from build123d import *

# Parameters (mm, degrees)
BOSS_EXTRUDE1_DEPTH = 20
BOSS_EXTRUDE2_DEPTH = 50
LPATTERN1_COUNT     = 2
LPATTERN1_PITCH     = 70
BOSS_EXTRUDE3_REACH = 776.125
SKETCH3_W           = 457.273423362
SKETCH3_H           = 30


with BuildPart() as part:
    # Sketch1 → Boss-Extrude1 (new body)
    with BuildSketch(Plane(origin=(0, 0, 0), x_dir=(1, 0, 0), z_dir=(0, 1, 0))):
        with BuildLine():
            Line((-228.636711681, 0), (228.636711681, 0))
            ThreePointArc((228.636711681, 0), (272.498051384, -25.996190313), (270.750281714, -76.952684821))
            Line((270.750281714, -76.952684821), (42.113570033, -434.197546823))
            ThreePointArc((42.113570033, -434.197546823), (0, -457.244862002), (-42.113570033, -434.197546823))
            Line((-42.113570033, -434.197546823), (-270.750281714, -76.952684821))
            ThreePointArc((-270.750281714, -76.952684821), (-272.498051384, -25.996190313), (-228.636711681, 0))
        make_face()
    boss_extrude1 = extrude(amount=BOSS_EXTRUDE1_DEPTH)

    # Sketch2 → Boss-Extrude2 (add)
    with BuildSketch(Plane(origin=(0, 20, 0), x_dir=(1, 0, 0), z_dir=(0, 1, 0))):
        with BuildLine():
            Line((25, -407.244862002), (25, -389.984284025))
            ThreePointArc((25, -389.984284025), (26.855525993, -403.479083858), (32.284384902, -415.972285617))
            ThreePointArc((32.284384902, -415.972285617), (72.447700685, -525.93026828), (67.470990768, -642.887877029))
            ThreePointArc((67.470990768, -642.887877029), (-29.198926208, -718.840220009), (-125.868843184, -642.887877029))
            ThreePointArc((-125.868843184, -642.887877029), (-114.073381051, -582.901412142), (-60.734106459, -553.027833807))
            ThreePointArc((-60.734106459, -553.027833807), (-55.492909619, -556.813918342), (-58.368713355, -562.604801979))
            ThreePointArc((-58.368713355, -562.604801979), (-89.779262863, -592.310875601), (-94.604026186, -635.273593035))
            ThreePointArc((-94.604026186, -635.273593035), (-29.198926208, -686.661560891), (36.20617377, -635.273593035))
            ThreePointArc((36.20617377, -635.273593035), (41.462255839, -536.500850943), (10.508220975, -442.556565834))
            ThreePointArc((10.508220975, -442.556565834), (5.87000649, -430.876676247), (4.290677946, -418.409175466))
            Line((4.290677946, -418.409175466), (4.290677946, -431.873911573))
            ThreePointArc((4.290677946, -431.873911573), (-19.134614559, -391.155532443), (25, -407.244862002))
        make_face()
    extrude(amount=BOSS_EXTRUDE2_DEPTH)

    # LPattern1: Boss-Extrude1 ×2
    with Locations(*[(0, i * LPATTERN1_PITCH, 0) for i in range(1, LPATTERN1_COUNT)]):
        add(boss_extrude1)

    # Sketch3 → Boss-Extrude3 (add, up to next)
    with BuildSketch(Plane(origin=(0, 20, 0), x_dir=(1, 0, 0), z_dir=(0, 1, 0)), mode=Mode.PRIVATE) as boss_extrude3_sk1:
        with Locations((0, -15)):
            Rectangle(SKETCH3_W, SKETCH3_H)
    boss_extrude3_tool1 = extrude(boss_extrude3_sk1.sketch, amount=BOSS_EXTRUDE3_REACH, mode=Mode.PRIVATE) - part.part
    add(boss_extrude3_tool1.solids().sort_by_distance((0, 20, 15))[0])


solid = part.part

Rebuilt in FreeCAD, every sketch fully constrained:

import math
import FreeCAD as App
import Part
import Sketcher
from FreeCAD import Vector

doc = App.newDocument("Part")
body = doc.addObject("PartDesign::Body", "Body")

sketch1 = body.newObject("Sketcher::SketchObject", "Sketch")
sketch1.AttachmentSupport = (doc.getObject("XZ_Plane"), [""])
sketch1.MapMode = "FlatFace"
sketch1.addGeometry([
    Part.LineSegment(Vector(229, 0, 0), Vector(-229, 0, 0)),
    Part.ArcOfCircle(Part.Circle(Vector(-229, 50, 0), Vector(0, 0, 1), 50), math.radians(147), math.radians(270)),
    Part.LineSegment(Vector(-271, 77, 0), Vector(-42, 434, 0)),
    Part.ArcOfCircle(Part.Circle(Vector(0, 407, 0), Vector(0, 0, 1), 50), math.radians(33), math.radians(147)),
    Part.LineSegment(Vector(42, 434, 0), Vector(271, 77, 0)),
    Part.ArcOfCircle(Part.Circle(Vector(229, 50, 0), Vector(0, 0, 1), 50), math.radians(-90), math.radians(33)),
], False)
sketch1.addConstraint([
    Sketcher.Constraint("Tangent", 0, 2, 1, 2),
    Sketcher.Constraint("Tangent", 1, 1, 2, 1),
    Sketcher.Constraint("Tangent", 2, 2, 3, 2),
    Sketcher.Constraint("Tangent", 3, 1, 4, 1),
    Sketcher.Constraint("Tangent", 4, 2, 5, 2),
    Sketcher.Constraint("Tangent", 5, 1, 0, 1),
    Sketcher.Constraint("Horizontal", 0),
    Sketcher.Constraint("Equal", 1, 3),
    Sketcher.Constraint("Equal", 3, 5),
    Sketcher.Constraint("Symmetric", 0, 2, 5, 1, -1, 1),
    Sketcher.Constraint("PointOnObject", 3, 3, -2),
    Sketcher.Constraint("Radius", 1, 50.0),
    Sketcher.Constraint("DistanceX", 0, 2, 0, 1, 457.273423),
    Sketcher.Constraint("DistanceX", 2, 2, -1, 1, 42.11357),
])
pad1 = body.newObject("PartDesign::Pad", "Pad")
pad1.Profile = sketch1
pad1.Length = 20
pad1.Reversed = True

sketch2 = body.newObject("Sketcher::SketchObject", "Sketch001")
sketch2.AttachmentSupport = (doc.getObject("XZ_Plane"), [""])
sketch2.MapMode = "FlatFace"
sketch2.AttachmentOffset = App.Placement(Vector(0, 0, -20), App.Rotation())
sketch2.addGeometry([
    Part.LineSegment(Vector(25, 390, 0), Vector(25, 407.2, 0)),
    Part.ArcOfCircle(Part.Circle(Vector(0, 407.2, 0), Vector(0, 0, 1), 25), math.radians(80), math.radians(360)),
    Part.LineSegment(Vector(4.3, 431.9, 0), Vector(4.3, 418.4, 0)),
    Part.ArcOfCircle(Part.Circle(Vector(54.3, 418.4, 0), Vector(0, 0, 1), 50), math.radians(151), math.radians(180)),
    Part.ArcOfCircle(Part.Circle(Vector(-224, 571.9, 0), Vector(0, 0, 1), 267.8), math.radians(-29), math.radians(14)),
    Part.ArcOfCircle(Part.Circle(Vector(-29.2, 619.3, 0), Vector(0, 0, 1), 67.3), math.radians(14), math.radians(166)),
    Part.ArcOfCircle(Part.Circle(Vector(-33.5, 620.4, 0), Vector(0, 0, 1), 62.9), math.radians(166), math.radians(247)),
    Part.ArcOfCircle(Part.Circle(Vector(-60.3, 558, 0), Vector(0, 0, 1), 5), math.radians(-94), math.radians(67)),
    Part.ArcOfCircle(Part.Circle(Vector(-55.1, 625.7, 0), Vector(0, 0, 1), 72.8), math.radians(166), math.radians(266)),
    Part.ArcOfCircle(Part.Circle(Vector(-29.2, 619.3, 0), Vector(0, 0, 1), 99.5), math.radians(14), math.radians(166)),
    Part.ArcOfCircle(Part.Circle(Vector(-224, 571.9, 0), Vector(0, 0, 1), 300), math.radians(-31), math.radians(14)),
    Part.ArcOfCircle(Part.Circle(Vector(75, 390, 0), Vector(0, 0, 1), 50), math.radians(149), math.radians(180)),
], False)
sketch2.addConstraint([
    Sketcher.Constraint("Tangent", 0, 2, 1, 2),
    Sketcher.Constraint("Coincident", 1, 1, 2, 1),
    Sketcher.Constraint("Tangent", 2, 2, 3, 2),
    Sketcher.Constraint("Tangent", 3, 1, 4, 1),
    Sketcher.Constraint("Tangent", 4, 2, 5, 1),
    Sketcher.Constraint("Tangent", 5, 2, 6, 1),
    Sketcher.Constraint("Tangent", 6, 2, 7, 2),
    Sketcher.Constraint("Tangent", 7, 1, 8, 2),
    Sketcher.Constraint("Tangent", 8, 1, 9, 2),
    Sketcher.Constraint("Tangent", 9, 1, 10, 2),
    Sketcher.Constraint("Tangent", 10, 1, 11, 1),
    Sketcher.Constraint("Tangent", 11, 2, 0, 1),
    Sketcher.Constraint("Vertical", 0),
    Sketcher.Constraint("Vertical", 2),
    Sketcher.Constraint("Coincident", 9, 3, 5, 3),
    Sketcher.Constraint("Coincident", 10, 3, 4, 3),
    Sketcher.Constraint("Equal", 3, 11),
    Sketcher.Constraint("PointOnObject", 1, 3, -2),
    Sketcher.Constraint("Horizontal", 4, 2, 5, 2),
    Sketcher.Constraint("Horizontal", 8, 1, 9, 1),
    Sketcher.Constraint("Radius", 1, 25.0),
    Sketcher.Constraint("Radius", 3, 50.0),
    Sketcher.Constraint("Radius", 7, 5.0),
    Sketcher.Constraint("Radius", 10, 300.0),
    Sketcher.Constraint("Radius", 4, 267.821341),
    Sketcher.Constraint("Radius", 5, 67.316831),
    Sketcher.Constraint("Radius", 6, 62.915625),
    Sketcher.Constraint("Radius", 8, 72.842303),
    Sketcher.Constraint("DistanceY", -1, 1, 6, 2, 562.604802),
    Sketcher.Constraint("DistanceX", 7, 3, 6, 3, 26.871901),
    Sketcher.Constraint("DistanceY", 0, 1, 0, 2, 17.260578),
    Sketcher.Constraint("DistanceY", 2, 2, 2, 1, 13.464736),
    Sketcher.Constraint("DistanceX", 8, 3, -1, 1, 55.095189),
])
pad2 = body.newObject("PartDesign::Pad", "Pad001")
pad2.Profile = sketch2
pad2.Length = 50
pad2.Reversed = True
doc.recompute()

linearpattern = body.newObject("PartDesign::LinearPattern", "LinearPattern")
linearpattern.Originals = [pad1]
linearpattern.Direction = (doc.getObject("Y_Axis"), [""])
linearpattern.Mode = "offset"
linearpattern.Offset = 70
linearpattern.Occurrences = 2
body.Tip = linearpattern

sketch3 = body.newObject("Sketcher::SketchObject", "Sketch002")
sketch3.AttachmentSupport = (doc.getObject("XZ_Plane"), [""])
sketch3.MapMode = "FlatFace"
sketch3.AttachmentOffset = App.Placement(Vector(0, 0, -20), App.Rotation())
sketch3.addGeometry([
    Part.LineSegment(Vector(-229, 0, 0), Vector(-229, 30, 0)),
    Part.LineSegment(Vector(-229, 30, 0), Vector(229, 30, 0)),
    Part.LineSegment(Vector(229, 30, 0), Vector(229, 0, 0)),
    Part.LineSegment(Vector(229, 0, 0), Vector(-229, 0, 0)),
], False)
sketch3.addConstraint([
    Sketcher.Constraint("Coincident", 0, 2, 1, 1),
    Sketcher.Constraint("Coincident", 1, 2, 2, 1),
    Sketcher.Constraint("Coincident", 2, 2, 3, 1),
    Sketcher.Constraint("Coincident", 3, 2, 0, 1),
    Sketcher.Constraint("Vertical", 0),
    Sketcher.Constraint("Horizontal", 1),
    Sketcher.Constraint("Vertical", 2),
    Sketcher.Constraint("Horizontal", 3),
    Sketcher.Constraint("Symmetric", 2, 2, 3, 2, -1, 1),
    Sketcher.Constraint("DistanceY", 0, 1, 0, 2, 30.0),
    Sketcher.Constraint("DistanceX", 1, 1, 1, 2, 457.273423),
])
pad3 = body.newObject("PartDesign::Pad", "Pad002")
pad3.Profile = sketch3
pad3.Type = "UpToFirst"
pad3.Reversed = True

doc.recompute()
